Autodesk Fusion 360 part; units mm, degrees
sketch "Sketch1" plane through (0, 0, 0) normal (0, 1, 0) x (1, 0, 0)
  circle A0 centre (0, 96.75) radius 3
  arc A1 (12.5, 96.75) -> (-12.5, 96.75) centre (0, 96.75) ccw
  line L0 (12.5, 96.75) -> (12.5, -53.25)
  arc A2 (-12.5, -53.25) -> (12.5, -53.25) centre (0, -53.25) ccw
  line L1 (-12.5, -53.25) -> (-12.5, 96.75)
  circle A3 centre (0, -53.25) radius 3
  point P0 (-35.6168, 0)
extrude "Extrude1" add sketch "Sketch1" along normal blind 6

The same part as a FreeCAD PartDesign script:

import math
import FreeCAD as App
import Part
import Sketcher
from FreeCAD import Vector
Q = App.Units.Quantity

doc = App.newDocument("Part")
body = doc.addObject("PartDesign::Body", "Body")

sketch1 = doc.addObject("Sketcher::SketchObject", "Sketch")
body.addObject(sketch1)
sketch1.AttachmentSupport = (doc.XZ_Plane, [""])
sketch1.MapMode = "FlatFace"
sketch1.addGeometry(Part.LineSegment(Vector(12.5, 53.2, 0), Vector(12.5, -96.8, 0)), False)
sketch1.addGeometry(Part.ArcOfCircle(Part.Circle(Vector(0, -96.8, 0), Vector(0, 0, 1), 12.5), math.radians(180), math.radians(360)), False)
sketch1.addGeometry(Part.LineSegment(Vector(-12.5, -96.8, 0), Vector(-12.5, 53.2, 0)), False)
sketch1.addGeometry(Part.ArcOfCircle(Part.Circle(Vector(0, 53.2, 0), Vector(0, 0, 1), 12.5), math.radians(0), math.radians(180)), False)
sketch1.addGeometry(Part.Circle(Vector(0, 53.2, 0), Vector(0, 0, 1), 3), False)
sketch1.addGeometry(Part.Circle(Vector(0, -96.8, 0), Vector(0, 0, 1), 3), False)
sketch1.addConstraint(Sketcher.Constraint("Tangent", 0, 2, 1, 2))
sketch1.addConstraint(Sketcher.Constraint("Tangent", 1, 1, 2, 1))
sketch1.addConstraint(Sketcher.Constraint("Tangent", 2, 2, 3, 2))
sketch1.addConstraint(Sketcher.Constraint("Tangent", 3, 1, 0, 1))
sketch1.addConstraint(Sketcher.Constraint("Vertical", 0))
sketch1.addConstraint(Sketcher.Constraint("Vertical", 2))
sketch1.addConstraint(Sketcher.Constraint("Coincident", 4, 3, 3, 3))
sketch1.addConstraint(Sketcher.Constraint("Coincident", 5, 3, 1, 3))
sketch1.addConstraint(Sketcher.Constraint("Equal", 4, 5))
sketch1.addConstraint(Sketcher.Constraint("PointOnObject", 1, 3, -2))
sketch1.addConstraint(Sketcher.Constraint("Diameter", 4, Q("6 mm")))
sketch1.addConstraint(Sketcher.Constraint("Radius", 1, Q("12.5 mm")))
sketch1.addConstraint(Sketcher.Constraint("DistanceY", 0, 2, 0, 1, Q("150 mm")))
sketch1.addConstraint(Sketcher.Constraint("DistanceY", 1, 3, -1, 1, Q("96.75 mm")))
pad1 = doc.addObject("PartDesign::Pad", "Pad")
body.addObject(pad1)
pad1.Profile = sketch1
pad1.Length = 6
pad1.Reversed = True

doc.recompute()
